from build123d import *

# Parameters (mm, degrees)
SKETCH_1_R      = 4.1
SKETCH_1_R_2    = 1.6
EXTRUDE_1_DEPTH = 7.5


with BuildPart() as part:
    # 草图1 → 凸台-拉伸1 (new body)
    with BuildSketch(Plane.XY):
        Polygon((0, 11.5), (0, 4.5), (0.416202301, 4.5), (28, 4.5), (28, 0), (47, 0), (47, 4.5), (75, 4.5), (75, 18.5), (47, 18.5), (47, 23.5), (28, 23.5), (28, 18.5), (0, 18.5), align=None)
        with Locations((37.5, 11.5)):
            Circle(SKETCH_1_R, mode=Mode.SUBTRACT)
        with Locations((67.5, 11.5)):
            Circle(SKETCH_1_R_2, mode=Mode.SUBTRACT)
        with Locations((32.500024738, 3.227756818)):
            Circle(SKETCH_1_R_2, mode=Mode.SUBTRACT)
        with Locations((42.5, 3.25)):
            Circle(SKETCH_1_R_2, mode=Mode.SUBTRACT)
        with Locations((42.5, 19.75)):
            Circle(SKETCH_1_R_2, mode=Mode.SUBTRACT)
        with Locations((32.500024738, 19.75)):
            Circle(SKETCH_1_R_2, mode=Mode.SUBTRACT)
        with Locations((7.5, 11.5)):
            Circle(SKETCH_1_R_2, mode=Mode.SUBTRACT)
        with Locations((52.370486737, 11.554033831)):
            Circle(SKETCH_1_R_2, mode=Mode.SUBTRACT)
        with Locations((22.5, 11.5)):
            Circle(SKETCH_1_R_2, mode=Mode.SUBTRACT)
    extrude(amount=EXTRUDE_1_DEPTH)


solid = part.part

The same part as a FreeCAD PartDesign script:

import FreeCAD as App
import Part
import Sketcher
from FreeCAD import Vector


def add_polygon(sketch, points):
    """Adds a closed chain of lines whose ends are joined by coincident constraints."""
    first, n = sketch.GeometryCount, len(points)
    for a, b in zip(points, points[1:] + points[:1]):
        sketch.addGeometry(Part.LineSegment(App.Vector(*a, 0), App.Vector(*b, 0)), False)
    for i in range(n):
        sketch.addConstraint(Sketcher.Constraint("Coincident", first + i, 2, first + (i + 1) % n, 1))

doc = App.newDocument("Part")
body = doc.addObject("PartDesign::Body", "Body")

# Sketch on XY plane
sketch1 = body.newObject("Sketcher::SketchObject", "Sketch")
sketch1.AttachmentSupport = (doc.getObject("XY_Plane"), [""])
sketch1.MapMode = "FlatFace"
add_polygon(sketch1, [(0, 4.5), (28, 4.5), (28, 0), (47, 0), (47, 4.5), (75, 4.5), (75, 18.5), (47, 18.5), (47, 23.5), (28, 23.5), (28, 18.5), (0, 18.5)])  # lines 0-11
sketch1.addGeometry(Part.Circle(Vector(32.5, 3.2, 0), Vector(0, 0, 1), 1.6), False)  # 12
sketch1.addGeometry(Part.Circle(Vector(42.5, 3.2, 0), Vector(0, 0, 1), 1.6), False)  # 13
sketch1.addGeometry(Part.Circle(Vector(7.5, 11.5, 0), Vector(0, 0, 1), 1.6), False)  # 14
sketch1.addGeometry(Part.Circle(Vector(22.5, 11.5, 0), Vector(0, 0, 1), 1.6), False)  # 15
sketch1.addGeometry(Part.Circle(Vector(32.5, 19.8, 0), Vector(0, 0, 1), 1.6), False)  # 16
sketch1.addGeometry(Part.Circle(Vector(37.5, 11.5, 0), Vector(0, 0, 1), 4.1), False)  # 17
sketch1.addGeometry(Part.Circle(Vector(52.4, 11.6, 0), Vector(0, 0, 1), 1.6), False)  # 18
sketch1.addGeometry(Part.Circle(Vector(67.5, 11.5, 0), Vector(0, 0, 1), 1.6), False)  # 19
sketch1.addGeometry(Part.Circle(Vector(42.5, 19.8, 0), Vector(0, 0, 1), 1.6), False)  # 20
sketch1.addConstraint(Sketcher.Constraint("Horizontal", 0))
sketch1.addConstraint(Sketcher.Constraint("Vertical", 1))
sketch1.addConstraint(Sketcher.Constraint("Horizontal", 2))
sketch1.addConstraint(Sketcher.Constraint("Vertical", 3))
sketch1.addConstraint(Sketcher.Constraint("Horizontal", 4))
sketch1.addConstraint(Sketcher.Constraint("Vertical", 5))
sketch1.addConstraint(Sketcher.Constraint("Horizontal", 6))
sketch1.addConstraint(Sketcher.Constraint("Vertical", 7))
sketch1.addConstraint(Sketcher.Constraint("Horizontal", 8))
sketch1.addConstraint(Sketcher.Constraint("Vertical", 9))
sketch1.addConstraint(Sketcher.Constraint("Horizontal", 10))
sketch1.addConstraint(Sketcher.Constraint("Vertical", 11))
sketch1.addConstraint(Sketcher.Constraint("Equal", 12, 13))
sketch1.addConstraint(Sketcher.Constraint("Equal", 13, 14))
sketch1.addConstraint(Sketcher.Constraint("Equal", 14, 15))
sketch1.addConstraint(Sketcher.Constraint("Equal", 15, 16))
sketch1.addConstraint(Sketcher.Constraint("Equal", 16, 18))
sketch1.addConstraint(Sketcher.Constraint("Equal", 18, 19))
sketch1.addConstraint(Sketcher.Constraint("Equal", 19, 20))
sketch1.addConstraint(Sketcher.Constraint("PointOnObject", 1, 2, -1))
sketch1.addConstraint(Sketcher.Constraint("PointOnObject", 10, 2, -2))
sketch1.addConstraint(Sketcher.Constraint("Horizontal", 14, 3, 15, 3))
sketch1.addConstraint(Sketcher.Constraint("Horizontal", 15, 3, 17, 3))
sketch1.addConstraint(Sketcher.Constraint("Horizontal", 17, 3, 19, 3))
sketch1.addConstraint(Sketcher.Constraint("Horizontal", 16, 3, 20, 3))
sketch1.addConstraint(Sketcher.Constraint("Horizontal", 0, 2, 3, 2))
sketch1.addConstraint(Sketcher.Constraint("Horizontal", 6, 2, 9, 2))
sketch1.addConstraint(Sketcher.Constraint("Vertical", 12, 3, 16, 3))
sketch1.addConstraint(Sketcher.Constraint("Vertical", 13, 3, 20, 3))
sketch1.addConstraint(Sketcher.Constraint("Vertical", 3, 2, 6, 2))
sketch1.addConstraint(Sketcher.Constraint("Vertical", 1, 2, 8, 2))
sketch1.addConstraint(Sketcher.Constraint("Equal", 0, 4))
sketch1.addConstraint(Sketcher.Constraint("Diameter", 12, 3.2))
sketch1.addConstraint(Sketcher.Constraint("Diameter", 17, 8.2))
sketch1.addConstraint(Sketcher.Constraint("DistanceX", 0, 1, 0, 2, 28.0))
sketch1.addConstraint(Sketcher.Constraint("DistanceX", 2, 1, 2, 2, 19.0))
sketch1.addConstraint(Sketcher.Constraint("DistanceY", 5, 1, 5, 2, 14.0))
sketch1.addConstraint(Sketcher.Constraint("DistanceY", 7, 1, 7, 2, 5.0))
sketch1.addConstraint(Sketcher.Constraint("DistanceY", 1, 2, 1, 1, 4.5))
sketch1.addConstraint(Sketcher.Constraint("DistanceX", 14, 3, 13, 3, 35.0))
sketch1.addConstraint(Sketcher.Constraint("DistanceX", 14, 3, 15, 3, 15.0))
sketch1.addConstraint(Sketcher.Constraint("DistanceX", 17, 3, 13, 3, 5.0))
sketch1.addConstraint(Sketcher.Constraint("DistanceX", 13, 3, 19, 3, 25.0))
sketch1.addConstraint(Sketcher.Constraint("DistanceY", 0, 2, 15, 3, 7.0))
sketch1.addConstraint(Sketcher.Constraint("DistanceX", -1, 1, 13, 3, 42.5))
sketch1.addConstraint(Sketcher.Constraint("DistanceY", 13, 3, 16, 3, 16.5))
sketch1.addConstraint(Sketcher.Constraint("DistanceY", -1, 1, 13, 3, 3.25))
sketch1.addConstraint(Sketcher.Constraint("DistanceX", 16, 3, 18, 3, 19.870462))
sketch1.addConstraint(Sketcher.Constraint("DistanceX", -1, 1, 12, 3, 32.500025))
sketch1.addConstraint(Sketcher.Constraint("DistanceY", -1, 1, 12, 3, 3.227757))
sketch1.addConstraint(Sketcher.Constraint("DistanceY", -1, 1, 18, 3, 11.554034))
pad1 = body.newObject("PartDesign::Pad", "Pad")
pad1.Profile = sketch1
pad1.Length = 7.5

doc.recompute()
